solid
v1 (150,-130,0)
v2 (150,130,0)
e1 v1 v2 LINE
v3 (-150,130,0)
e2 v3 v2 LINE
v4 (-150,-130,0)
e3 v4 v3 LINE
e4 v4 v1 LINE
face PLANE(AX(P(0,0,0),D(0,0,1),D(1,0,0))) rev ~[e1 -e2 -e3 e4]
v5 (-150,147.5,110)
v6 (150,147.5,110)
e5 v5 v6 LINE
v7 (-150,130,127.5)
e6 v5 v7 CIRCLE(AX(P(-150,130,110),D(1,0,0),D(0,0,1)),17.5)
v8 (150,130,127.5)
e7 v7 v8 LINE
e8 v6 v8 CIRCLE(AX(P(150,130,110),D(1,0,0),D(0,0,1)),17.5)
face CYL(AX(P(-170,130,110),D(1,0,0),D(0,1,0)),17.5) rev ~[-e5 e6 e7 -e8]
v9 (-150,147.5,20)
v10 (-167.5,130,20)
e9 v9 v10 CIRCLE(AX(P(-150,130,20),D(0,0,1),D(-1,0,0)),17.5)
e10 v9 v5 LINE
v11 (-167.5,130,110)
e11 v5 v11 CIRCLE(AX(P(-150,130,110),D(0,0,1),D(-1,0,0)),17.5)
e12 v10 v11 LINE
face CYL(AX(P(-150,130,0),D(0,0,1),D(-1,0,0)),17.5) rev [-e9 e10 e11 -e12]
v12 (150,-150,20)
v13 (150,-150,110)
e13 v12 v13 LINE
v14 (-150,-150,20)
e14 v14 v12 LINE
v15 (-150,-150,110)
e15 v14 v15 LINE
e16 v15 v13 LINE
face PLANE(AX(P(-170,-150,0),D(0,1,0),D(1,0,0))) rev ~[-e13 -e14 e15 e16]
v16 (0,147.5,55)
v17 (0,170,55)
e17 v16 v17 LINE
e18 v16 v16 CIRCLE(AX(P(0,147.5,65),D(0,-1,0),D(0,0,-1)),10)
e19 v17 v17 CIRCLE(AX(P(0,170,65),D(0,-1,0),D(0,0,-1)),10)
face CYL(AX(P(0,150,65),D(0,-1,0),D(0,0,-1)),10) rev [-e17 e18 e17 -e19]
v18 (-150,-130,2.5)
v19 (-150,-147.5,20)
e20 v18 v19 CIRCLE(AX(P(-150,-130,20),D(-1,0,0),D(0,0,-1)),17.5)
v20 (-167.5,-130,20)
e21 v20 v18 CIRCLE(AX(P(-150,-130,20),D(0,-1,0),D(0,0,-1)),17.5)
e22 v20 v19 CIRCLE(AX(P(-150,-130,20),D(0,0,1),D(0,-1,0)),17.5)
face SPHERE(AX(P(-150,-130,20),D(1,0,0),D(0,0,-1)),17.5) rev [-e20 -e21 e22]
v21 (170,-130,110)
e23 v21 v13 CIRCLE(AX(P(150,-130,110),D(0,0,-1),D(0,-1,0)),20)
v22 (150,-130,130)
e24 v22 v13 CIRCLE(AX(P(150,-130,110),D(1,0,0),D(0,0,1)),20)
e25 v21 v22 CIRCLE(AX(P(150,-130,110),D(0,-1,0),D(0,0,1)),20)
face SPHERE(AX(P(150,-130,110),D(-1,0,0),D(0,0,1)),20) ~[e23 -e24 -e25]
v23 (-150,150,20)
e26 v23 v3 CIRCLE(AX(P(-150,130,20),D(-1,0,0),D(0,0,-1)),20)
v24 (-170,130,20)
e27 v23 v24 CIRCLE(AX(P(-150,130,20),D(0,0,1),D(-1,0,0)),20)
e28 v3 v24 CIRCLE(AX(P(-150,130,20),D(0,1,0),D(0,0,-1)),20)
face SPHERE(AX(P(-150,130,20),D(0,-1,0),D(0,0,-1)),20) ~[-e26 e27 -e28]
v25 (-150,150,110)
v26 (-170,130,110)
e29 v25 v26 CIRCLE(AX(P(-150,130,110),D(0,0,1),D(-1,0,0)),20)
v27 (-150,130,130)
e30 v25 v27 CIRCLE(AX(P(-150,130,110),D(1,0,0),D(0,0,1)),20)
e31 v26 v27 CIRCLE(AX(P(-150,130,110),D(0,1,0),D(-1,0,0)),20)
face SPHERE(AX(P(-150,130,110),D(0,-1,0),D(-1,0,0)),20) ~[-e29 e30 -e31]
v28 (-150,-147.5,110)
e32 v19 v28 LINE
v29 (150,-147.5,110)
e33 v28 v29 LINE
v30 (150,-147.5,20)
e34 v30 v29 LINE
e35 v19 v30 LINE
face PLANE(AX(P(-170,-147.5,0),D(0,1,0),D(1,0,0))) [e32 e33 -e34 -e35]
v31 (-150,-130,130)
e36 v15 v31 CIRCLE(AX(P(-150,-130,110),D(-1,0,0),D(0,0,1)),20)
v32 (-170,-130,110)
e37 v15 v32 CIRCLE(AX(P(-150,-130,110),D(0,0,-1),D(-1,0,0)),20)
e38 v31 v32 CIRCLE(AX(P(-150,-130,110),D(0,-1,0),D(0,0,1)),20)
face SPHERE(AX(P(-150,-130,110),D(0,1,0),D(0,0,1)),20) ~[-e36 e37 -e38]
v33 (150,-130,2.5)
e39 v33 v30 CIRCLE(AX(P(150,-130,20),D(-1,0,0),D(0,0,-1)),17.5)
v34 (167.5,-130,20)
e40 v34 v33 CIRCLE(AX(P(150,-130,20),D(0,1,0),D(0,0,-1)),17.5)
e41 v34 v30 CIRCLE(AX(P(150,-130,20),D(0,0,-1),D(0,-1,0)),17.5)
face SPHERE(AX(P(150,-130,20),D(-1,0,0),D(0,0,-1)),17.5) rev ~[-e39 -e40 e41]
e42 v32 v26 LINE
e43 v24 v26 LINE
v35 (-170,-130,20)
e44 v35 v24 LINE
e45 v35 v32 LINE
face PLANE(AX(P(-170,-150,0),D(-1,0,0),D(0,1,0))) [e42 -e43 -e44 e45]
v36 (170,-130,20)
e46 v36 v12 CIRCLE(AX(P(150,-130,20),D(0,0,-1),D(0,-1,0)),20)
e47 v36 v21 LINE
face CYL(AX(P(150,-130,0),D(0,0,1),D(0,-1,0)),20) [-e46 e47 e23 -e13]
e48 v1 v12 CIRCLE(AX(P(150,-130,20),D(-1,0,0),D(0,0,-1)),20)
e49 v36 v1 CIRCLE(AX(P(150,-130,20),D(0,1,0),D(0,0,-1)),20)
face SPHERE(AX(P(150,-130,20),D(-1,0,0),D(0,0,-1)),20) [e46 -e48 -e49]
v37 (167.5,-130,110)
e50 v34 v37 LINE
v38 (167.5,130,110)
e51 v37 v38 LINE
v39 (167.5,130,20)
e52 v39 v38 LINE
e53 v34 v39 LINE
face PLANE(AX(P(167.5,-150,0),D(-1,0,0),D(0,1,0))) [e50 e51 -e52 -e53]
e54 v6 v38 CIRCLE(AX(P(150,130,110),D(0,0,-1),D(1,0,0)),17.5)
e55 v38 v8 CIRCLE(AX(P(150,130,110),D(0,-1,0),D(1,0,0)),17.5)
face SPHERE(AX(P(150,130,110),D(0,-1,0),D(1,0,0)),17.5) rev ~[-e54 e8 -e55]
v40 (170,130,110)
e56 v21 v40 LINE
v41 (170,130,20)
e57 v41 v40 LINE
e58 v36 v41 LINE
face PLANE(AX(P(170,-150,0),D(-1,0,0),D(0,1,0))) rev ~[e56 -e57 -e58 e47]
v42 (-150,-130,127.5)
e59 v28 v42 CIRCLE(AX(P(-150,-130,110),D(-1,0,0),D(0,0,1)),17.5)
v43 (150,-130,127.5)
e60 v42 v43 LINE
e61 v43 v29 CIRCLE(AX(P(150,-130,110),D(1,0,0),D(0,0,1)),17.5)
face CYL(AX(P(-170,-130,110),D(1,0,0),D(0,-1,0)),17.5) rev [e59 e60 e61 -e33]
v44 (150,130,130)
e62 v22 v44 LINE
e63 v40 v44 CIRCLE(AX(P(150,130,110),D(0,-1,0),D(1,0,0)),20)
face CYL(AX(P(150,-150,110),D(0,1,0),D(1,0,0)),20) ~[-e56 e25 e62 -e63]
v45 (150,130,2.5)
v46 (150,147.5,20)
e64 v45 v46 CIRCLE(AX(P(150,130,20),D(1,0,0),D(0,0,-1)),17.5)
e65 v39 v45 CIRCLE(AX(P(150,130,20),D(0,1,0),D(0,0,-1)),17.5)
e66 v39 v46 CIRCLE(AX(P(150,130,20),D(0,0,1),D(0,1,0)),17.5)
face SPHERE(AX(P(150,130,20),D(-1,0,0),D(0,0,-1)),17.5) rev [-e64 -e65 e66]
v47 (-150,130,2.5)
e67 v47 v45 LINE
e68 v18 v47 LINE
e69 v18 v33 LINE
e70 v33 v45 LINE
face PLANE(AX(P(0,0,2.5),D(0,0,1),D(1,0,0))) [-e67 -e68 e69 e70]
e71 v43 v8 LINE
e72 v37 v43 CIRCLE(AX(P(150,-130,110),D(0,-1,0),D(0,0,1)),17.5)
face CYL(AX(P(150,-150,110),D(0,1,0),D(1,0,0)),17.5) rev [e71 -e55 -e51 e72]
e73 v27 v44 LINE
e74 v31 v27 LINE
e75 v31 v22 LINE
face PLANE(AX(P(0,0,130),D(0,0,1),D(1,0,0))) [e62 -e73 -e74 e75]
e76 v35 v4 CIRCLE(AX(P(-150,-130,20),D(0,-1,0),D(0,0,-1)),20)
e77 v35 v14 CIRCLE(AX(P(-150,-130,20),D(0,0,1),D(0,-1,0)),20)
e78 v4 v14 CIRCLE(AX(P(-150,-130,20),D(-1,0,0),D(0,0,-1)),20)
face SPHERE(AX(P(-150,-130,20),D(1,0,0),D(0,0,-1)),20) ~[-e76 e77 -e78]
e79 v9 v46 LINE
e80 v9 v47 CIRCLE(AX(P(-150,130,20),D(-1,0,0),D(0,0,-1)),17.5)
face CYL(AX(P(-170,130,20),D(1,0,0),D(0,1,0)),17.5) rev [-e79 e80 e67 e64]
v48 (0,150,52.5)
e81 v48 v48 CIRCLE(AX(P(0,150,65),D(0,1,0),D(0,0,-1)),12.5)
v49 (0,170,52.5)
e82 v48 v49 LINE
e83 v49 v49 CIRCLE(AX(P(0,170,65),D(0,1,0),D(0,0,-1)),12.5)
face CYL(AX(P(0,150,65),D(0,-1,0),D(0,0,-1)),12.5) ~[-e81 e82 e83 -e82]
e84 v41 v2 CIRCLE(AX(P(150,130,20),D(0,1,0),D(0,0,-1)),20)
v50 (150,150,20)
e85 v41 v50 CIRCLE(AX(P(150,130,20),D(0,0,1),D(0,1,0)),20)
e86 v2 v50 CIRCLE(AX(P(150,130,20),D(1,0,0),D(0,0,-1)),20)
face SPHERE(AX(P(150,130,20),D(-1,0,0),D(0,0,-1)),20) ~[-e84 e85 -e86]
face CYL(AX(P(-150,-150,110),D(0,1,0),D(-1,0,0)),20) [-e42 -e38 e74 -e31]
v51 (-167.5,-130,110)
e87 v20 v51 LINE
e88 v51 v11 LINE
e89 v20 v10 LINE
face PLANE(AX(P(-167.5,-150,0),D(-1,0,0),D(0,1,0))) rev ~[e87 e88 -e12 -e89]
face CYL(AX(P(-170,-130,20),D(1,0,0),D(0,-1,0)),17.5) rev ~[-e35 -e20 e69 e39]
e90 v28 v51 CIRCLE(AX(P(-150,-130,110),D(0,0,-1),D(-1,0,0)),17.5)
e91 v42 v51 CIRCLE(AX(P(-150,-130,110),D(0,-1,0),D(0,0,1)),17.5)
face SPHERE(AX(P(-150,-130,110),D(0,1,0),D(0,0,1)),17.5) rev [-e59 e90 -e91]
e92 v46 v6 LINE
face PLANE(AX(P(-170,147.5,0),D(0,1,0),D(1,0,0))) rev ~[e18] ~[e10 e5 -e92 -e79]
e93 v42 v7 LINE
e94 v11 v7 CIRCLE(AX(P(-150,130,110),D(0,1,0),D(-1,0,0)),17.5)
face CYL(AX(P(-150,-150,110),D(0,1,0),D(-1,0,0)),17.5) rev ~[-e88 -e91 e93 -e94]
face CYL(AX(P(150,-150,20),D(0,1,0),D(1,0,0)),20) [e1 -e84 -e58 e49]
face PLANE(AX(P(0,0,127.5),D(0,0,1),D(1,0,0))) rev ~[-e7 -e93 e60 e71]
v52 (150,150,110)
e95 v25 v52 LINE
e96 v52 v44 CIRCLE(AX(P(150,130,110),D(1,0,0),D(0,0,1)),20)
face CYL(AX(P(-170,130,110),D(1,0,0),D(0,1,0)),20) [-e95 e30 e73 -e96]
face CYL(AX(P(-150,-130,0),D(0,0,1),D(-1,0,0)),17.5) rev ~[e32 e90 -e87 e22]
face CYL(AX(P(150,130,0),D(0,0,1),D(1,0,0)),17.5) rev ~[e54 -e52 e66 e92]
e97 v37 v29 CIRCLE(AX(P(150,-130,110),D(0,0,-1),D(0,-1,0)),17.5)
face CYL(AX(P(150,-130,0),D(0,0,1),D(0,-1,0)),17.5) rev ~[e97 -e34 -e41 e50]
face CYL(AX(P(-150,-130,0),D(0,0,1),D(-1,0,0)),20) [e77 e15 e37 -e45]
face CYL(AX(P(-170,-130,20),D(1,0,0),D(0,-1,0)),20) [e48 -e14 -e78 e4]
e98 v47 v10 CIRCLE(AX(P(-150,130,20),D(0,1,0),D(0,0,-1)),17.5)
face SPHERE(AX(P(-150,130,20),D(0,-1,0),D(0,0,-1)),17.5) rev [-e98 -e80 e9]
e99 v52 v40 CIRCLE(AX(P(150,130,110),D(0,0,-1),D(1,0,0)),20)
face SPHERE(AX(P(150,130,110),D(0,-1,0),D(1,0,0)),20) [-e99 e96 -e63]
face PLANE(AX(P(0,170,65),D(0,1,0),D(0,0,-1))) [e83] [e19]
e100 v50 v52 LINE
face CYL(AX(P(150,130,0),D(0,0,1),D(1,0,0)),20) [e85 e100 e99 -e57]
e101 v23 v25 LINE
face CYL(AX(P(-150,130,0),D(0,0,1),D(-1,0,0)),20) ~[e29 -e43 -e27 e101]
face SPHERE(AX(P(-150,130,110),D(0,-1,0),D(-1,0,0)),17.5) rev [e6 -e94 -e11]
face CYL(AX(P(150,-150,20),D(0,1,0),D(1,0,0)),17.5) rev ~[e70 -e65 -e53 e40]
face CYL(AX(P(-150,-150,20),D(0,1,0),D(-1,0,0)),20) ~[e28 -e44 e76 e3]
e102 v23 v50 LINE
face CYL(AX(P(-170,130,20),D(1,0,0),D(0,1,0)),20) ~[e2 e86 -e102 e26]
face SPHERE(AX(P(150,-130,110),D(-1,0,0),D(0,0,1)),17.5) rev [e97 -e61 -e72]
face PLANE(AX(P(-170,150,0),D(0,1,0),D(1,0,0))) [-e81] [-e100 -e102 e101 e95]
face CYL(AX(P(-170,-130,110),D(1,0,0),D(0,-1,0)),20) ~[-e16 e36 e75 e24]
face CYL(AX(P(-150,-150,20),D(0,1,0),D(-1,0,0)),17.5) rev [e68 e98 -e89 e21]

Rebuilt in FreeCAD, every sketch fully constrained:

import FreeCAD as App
import Part
import Sketcher
from FreeCAD import Vector


def faces_at(feature, points):
    """Names of the faces that lie closest to the given points."""
    faces = feature.Shape.Faces
    near = lambda p: min(range(len(faces)), key=lambda i: faces[i].distToShape(Part.Vertex(*p))[0])
    return sorted({f"Face{near(p) + 1}" for p in points})


def add_polygon(sketch, points):
    """Adds a closed chain of lines whose ends are joined by coincident constraints."""
    first, n = sketch.GeometryCount, len(points)
    for a, b in zip(points, points[1:] + points[:1]):
        sketch.addGeometry(Part.LineSegment(App.Vector(*a, 0), App.Vector(*b, 0)), False)
    for i in range(n):
        sketch.addConstraint(Sketcher.Constraint("Coincident", first + i, 2, first + (i + 1) % n, 1))

doc = App.newDocument("Part")
body = doc.addObject("PartDesign::Body", "Body")

# Sketch on XY plane
sketch1 = body.newObject("Sketcher::SketchObject", "Sketch")
sketch1.AttachmentSupport = (doc.getObject("XY_Plane"), [""])
sketch1.MapMode = "FlatFace"
add_polygon(sketch1, [(-170, 150), (-170, -150), (170, -150), (170, 150)])  # lines 0-3
sketch1.addConstraint(Sketcher.Constraint("Vertical", 0))
sketch1.addConstraint(Sketcher.Constraint("Horizontal", 1))
sketch1.addConstraint(Sketcher.Constraint("Vertical", 2))
sketch1.addConstraint(Sketcher.Constraint("Horizontal", 3))
sketch1.addConstraint(Sketcher.Constraint("Symmetric", 0, 2, 2, 2, -1, 1))
sketch1.addConstraint(Sketcher.Constraint("DistanceX", 1, 1, 1, 2, 340.0))
sketch1.addConstraint(Sketcher.Constraint("DistanceY", 0, 2, 0, 1, 300.0))
pad1 = body.newObject("PartDesign::Pad", "Pad")
pad1.Profile = sketch1
pad1.Length = 130
doc.recompute()

fillet = body.newObject("PartDesign::Fillet", "Fillet")
fillet.Base = (pad1, ["Edge1"])
fillet.UseAllEdges = True
fillet.Radius = 20

# Sketch on XZ plane
sketch2 = body.newObject("Sketcher::SketchObject", "Sketch001")
sketch2.AttachmentSupport = (doc.getObject("XZ_Plane"), [""])
sketch2.MapMode = "FlatFace"
sketch2.AttachmentOffset = App.Placement(Vector(0, 0, -150), App.Rotation())
sketch2.addGeometry(Part.Circle(Vector(0, 65, 0), Vector(0, 0, 1), 12), False)
sketch2.addConstraint(Sketcher.Constraint("PointOnObject", 0, 3, -2))
sketch2.addConstraint(Sketcher.Constraint("Diameter", 0, 25.0))
sketch2.addConstraint(Sketcher.Constraint("DistanceY", -1, 1, 0, 3, 65.0))
pad2 = body.newObject("PartDesign::Pad", "Pad001")
pad2.Profile = sketch2
pad2.Length = 20
pad2.Reversed = True
doc.recompute()

thickness = body.newObject("PartDesign::Thickness", "Thickness")
thickness.Base = (pad2, faces_at(pad2, [(0, 170, 65)]))
thickness.Value = 2.5
thickness.Reversed = True
thickness.Join = "Intersection"

doc.recompute()
